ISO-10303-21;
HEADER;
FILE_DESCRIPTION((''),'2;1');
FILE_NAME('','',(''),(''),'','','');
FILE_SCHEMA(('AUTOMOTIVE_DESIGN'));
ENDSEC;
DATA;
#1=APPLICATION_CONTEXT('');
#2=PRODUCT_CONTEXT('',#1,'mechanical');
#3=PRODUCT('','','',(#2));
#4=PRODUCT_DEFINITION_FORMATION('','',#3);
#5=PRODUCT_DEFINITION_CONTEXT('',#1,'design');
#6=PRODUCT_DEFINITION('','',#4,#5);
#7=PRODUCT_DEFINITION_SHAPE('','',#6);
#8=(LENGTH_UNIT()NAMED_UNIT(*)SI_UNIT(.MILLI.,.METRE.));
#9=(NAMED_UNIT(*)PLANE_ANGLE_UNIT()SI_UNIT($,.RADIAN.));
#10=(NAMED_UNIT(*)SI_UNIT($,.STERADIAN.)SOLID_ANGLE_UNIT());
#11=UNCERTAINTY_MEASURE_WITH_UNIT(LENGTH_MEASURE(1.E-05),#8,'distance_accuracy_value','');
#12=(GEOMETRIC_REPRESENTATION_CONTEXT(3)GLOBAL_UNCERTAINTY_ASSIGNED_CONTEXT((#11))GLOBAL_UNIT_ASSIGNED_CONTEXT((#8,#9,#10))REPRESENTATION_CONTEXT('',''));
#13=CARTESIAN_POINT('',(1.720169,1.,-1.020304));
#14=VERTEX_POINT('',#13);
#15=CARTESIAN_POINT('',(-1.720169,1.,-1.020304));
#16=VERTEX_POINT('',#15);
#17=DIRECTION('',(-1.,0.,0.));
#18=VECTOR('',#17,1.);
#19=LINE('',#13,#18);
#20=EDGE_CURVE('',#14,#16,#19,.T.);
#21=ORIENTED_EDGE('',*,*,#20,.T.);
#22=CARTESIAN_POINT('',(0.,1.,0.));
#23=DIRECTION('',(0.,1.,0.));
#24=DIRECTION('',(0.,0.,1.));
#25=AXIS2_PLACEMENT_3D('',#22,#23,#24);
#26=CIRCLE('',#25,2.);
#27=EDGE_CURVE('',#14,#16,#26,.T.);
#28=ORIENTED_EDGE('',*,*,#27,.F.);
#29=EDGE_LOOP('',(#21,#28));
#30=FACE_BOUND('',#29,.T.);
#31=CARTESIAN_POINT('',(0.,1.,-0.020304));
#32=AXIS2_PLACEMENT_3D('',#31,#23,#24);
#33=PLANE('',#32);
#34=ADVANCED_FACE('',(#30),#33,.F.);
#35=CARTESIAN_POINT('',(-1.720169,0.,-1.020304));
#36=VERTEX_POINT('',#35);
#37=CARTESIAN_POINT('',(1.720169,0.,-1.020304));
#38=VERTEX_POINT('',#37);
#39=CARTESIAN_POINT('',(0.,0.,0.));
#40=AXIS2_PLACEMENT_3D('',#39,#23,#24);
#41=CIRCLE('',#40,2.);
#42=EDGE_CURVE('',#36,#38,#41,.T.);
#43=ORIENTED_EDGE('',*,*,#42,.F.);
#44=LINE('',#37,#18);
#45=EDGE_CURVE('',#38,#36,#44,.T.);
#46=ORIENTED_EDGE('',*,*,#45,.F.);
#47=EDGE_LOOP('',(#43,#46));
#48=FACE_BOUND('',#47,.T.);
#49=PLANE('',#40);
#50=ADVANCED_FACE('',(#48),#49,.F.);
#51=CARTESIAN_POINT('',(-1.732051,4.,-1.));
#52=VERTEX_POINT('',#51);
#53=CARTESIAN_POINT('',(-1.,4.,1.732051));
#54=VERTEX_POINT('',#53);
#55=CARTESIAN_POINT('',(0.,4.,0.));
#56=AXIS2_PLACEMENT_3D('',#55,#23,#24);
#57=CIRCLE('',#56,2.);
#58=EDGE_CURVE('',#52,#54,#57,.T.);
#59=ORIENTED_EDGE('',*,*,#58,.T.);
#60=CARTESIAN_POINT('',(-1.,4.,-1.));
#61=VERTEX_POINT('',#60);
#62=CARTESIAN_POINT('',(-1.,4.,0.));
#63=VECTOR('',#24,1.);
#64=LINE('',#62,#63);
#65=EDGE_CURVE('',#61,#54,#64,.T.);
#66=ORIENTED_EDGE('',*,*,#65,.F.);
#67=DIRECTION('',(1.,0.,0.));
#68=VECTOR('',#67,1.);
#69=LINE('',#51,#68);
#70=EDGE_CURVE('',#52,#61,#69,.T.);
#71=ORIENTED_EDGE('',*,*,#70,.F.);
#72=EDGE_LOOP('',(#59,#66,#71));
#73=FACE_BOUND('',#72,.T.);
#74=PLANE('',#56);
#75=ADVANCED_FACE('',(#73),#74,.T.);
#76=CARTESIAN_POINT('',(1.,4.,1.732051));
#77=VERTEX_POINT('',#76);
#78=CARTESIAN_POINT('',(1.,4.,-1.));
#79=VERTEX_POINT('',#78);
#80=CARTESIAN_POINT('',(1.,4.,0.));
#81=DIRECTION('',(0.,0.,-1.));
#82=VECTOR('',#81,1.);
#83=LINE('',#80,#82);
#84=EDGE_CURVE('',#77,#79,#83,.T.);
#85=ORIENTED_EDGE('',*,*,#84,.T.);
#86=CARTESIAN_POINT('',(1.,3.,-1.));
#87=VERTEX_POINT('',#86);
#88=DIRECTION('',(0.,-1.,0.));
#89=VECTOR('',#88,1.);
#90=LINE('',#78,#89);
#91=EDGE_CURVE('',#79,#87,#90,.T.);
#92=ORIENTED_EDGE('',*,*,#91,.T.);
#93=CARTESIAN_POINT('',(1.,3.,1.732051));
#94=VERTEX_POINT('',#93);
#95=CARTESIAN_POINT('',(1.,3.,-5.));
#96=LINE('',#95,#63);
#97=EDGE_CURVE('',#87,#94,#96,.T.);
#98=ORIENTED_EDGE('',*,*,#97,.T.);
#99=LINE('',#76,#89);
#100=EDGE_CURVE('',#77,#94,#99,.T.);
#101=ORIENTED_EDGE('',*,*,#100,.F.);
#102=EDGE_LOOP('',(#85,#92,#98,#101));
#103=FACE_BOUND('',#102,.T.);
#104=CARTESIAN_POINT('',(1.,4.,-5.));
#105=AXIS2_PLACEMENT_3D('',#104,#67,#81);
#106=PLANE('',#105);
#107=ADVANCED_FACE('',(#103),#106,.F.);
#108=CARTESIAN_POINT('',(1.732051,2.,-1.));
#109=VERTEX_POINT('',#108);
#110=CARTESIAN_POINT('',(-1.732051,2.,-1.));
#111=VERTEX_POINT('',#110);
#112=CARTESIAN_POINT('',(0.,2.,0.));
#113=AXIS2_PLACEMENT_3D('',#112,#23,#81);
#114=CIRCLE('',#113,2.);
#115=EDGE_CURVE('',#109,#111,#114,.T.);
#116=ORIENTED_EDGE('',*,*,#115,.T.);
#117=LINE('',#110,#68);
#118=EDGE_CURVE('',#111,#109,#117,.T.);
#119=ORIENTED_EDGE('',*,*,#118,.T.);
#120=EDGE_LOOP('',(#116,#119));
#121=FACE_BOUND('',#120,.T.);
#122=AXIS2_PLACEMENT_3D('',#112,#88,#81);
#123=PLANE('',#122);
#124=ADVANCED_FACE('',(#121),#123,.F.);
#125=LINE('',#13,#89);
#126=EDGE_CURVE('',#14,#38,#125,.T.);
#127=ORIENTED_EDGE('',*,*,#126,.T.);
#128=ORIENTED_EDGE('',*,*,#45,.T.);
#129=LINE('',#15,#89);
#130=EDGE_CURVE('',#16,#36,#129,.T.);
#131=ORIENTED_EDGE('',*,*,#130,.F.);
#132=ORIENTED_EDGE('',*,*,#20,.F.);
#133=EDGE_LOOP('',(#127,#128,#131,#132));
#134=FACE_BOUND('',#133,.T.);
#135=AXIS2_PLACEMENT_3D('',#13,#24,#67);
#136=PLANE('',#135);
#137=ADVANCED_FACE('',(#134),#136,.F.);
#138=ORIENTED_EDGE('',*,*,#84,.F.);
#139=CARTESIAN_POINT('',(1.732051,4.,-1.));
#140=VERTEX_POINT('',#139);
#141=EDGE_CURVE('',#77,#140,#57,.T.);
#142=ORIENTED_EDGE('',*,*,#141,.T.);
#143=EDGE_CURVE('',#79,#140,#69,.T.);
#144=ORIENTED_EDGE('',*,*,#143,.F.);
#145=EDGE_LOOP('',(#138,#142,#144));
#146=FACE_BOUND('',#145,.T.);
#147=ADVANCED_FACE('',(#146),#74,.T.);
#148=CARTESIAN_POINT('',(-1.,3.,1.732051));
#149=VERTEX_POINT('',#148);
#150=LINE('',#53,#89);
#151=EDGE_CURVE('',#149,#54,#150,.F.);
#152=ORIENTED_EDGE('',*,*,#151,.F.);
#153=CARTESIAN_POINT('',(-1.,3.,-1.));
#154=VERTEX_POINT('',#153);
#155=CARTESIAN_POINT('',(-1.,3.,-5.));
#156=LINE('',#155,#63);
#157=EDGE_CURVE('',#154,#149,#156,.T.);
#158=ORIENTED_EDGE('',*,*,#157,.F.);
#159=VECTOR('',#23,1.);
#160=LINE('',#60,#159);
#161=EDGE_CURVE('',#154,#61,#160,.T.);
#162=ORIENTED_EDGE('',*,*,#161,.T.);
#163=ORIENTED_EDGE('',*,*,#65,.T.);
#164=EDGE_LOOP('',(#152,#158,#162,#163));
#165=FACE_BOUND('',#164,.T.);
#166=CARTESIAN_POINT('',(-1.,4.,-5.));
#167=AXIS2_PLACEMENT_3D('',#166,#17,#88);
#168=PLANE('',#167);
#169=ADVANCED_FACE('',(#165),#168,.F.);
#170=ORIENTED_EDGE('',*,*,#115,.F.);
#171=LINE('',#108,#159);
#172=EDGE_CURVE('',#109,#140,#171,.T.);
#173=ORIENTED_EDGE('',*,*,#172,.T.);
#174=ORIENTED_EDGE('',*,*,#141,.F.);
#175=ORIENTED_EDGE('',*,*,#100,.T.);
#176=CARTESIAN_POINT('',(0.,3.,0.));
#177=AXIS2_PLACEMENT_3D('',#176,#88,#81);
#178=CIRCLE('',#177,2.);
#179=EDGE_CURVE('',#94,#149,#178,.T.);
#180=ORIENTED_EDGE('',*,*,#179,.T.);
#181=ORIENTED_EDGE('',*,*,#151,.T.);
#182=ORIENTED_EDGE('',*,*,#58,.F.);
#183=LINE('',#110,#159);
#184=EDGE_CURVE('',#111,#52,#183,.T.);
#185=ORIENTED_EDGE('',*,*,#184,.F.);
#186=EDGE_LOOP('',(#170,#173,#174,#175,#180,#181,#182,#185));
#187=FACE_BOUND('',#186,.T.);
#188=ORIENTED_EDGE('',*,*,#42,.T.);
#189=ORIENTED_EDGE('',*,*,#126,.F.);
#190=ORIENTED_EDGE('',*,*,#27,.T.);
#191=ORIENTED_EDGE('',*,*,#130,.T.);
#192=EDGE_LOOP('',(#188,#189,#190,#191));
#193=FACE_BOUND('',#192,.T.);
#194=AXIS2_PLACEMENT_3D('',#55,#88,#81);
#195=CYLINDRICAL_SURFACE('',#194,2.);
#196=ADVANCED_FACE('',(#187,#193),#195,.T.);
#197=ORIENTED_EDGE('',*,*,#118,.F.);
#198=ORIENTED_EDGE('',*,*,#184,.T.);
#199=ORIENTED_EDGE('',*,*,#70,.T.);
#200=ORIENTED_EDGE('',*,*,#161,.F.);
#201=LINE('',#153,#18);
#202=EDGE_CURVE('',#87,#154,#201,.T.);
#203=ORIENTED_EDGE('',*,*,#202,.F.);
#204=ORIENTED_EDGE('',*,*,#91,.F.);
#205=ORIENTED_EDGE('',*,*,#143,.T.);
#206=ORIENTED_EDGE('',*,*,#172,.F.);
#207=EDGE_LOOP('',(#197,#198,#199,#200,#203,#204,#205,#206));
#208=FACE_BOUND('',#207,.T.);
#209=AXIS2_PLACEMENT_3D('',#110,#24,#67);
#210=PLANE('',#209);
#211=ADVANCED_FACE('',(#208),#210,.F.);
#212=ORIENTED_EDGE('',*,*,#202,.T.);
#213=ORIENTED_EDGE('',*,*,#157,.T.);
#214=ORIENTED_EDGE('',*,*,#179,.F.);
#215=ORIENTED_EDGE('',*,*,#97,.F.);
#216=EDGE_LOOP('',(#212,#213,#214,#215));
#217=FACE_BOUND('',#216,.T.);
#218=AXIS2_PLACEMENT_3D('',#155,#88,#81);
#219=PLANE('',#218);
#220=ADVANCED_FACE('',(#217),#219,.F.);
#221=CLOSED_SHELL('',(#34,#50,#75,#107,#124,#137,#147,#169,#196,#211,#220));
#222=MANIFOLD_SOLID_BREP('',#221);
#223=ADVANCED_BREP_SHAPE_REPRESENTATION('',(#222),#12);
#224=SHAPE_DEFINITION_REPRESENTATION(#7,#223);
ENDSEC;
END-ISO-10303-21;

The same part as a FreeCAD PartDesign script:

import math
import FreeCAD as App
import Part
import Sketcher

V = App.Vector
Q = App.Units.Quantity

doc = App.newDocument("Part")
params = doc.addObject("Spreadsheet::Sheet", "Params")
for row, (alias, value) in enumerate([
    ("sketch1_diameter", "4 mm"),
    ("pad1_length", "4 mm"),
    ("sketch2_width", "2 mm"),
    ("sketch2_height", "1 mm"),
    ("pocket1_length", "10 mm"),
    ("sketch3_radius", "2 mm"),
    ("pocket2_length", "2 mm"),
    ("pocket3_length", "1 mm"),
], start=1):
    params.set(f"A{row}", alias)
    params.set(f"B{row}", "=" + value)
    params.setAlias(f"B{row}", alias)

body = doc.addObject("PartDesign::Body", "Body")

sketch1 = body.newObject("Sketcher::SketchObject", "Sketch")
sketch1.AttachmentSupport = (doc.getObject("XZ_Plane"), [""])
sketch1.MapMode = "FlatFace"
sketch1.addGeometry(Part.Circle(V(0, 0, 0), V(0, 0, 1), 2), False)
sketch1.addConstraint([
    Sketcher.Constraint("Coincident", 0, 3, -1, 1),
    Sketcher.Constraint("Diameter", 0, Q("4 mm")),
])
sketch1.setExpression("Constraints[1]", "Params.sketch1_diameter")
pad1 = body.newObject("PartDesign::Pad", "Pad")
pad1.Profile = sketch1
pad1.setExpression("Length", "Params.pad1_length")
pad1.Reversed = True

sketch2 = body.newObject("Sketcher::SketchObject", "Sketch001")
sketch2.AttachmentSupport = (doc.getObject("XY_Plane"), [""])
sketch2.MapMode = "FlatFace"
sketch2.addGeometry([
    Part.LineSegment(V(-1, 4, 0), V(-1, 3, 0)),
    Part.LineSegment(V(-1, 3, 0), V(1, 3, 0)),
    Part.LineSegment(V(1, 3, 0), V(1, 4, 0)),
    Part.LineSegment(V(1, 4, 0), V(-1, 4, 0)),
], False)
sketch2.addConstraint([
    Sketcher.Constraint("Coincident", 0, 2, 1, 1),
    Sketcher.Constraint("Coincident", 1, 2, 2, 1),
    Sketcher.Constraint("Coincident", 2, 2, 3, 1),
    Sketcher.Constraint("Coincident", 3, 2, 0, 1),
    Sketcher.Constraint("Vertical", 0),
    Sketcher.Constraint("Horizontal", 1),
    Sketcher.Constraint("Vertical", 2),
    Sketcher.Constraint("Horizontal", 3),
    Sketcher.Constraint("DistanceX", 1, 1, 1, 2, Q("2 mm")),
    Sketcher.Constraint("DistanceY", 0, 2, 0, 1, Q("1 mm")),
    Sketcher.Constraint("DistanceX", 0, 2, -1, 1, Q("1 mm")),
    Sketcher.Constraint("DistanceY", -1, 1, 0, 2, Q("3 mm")),
])
sketch2.setExpression("Constraints[8]", "Params.sketch2_width")
sketch2.setExpression("Constraints[9]", "Params.sketch2_height")
pocket1 = body.newObject("PartDesign::Pocket", "Pocket")
pocket1.Profile = sketch2
pocket1.setExpression("Length", "Params.pocket1_length")
pocket1.Midplane = True

sketch3 = body.newObject("Sketcher::SketchObject", "Sketch002")
sketch3.AttachmentSupport = (doc.getObject("XZ_Plane"), [""])
sketch3.MapMode = "FlatFace"
sketch3.AttachmentOffset = App.Placement(V(0, 0, -4), App.Rotation())
sketch3.addGeometry([
    Part.LineSegment(V(-1.732051, -1, 0), V(1.732051, -1, 0)),
    Part.ArcOfCircle(Part.Circle(V(0, 0, 0), V(0, 0, 1), 2), math.radians(-150), math.radians(-30)),
], False)
sketch3.addConstraint([
    Sketcher.Constraint("Coincident", 0, 1, 1, 1),
    Sketcher.Constraint("Coincident", 1, 2, 0, 2),
    Sketcher.Constraint("Horizontal", 0),
    Sketcher.Constraint("Coincident", 1, 3, -1, 1),
    Sketcher.Constraint("Radius", 1, Q("2 mm")),
    Sketcher.Constraint("DistanceY", 0, 1, -1, 1, Q("1 mm")),
])
sketch3.setExpression("Constraints[4]", "Params.sketch3_radius")
pocket2 = body.newObject("PartDesign::Pocket", "Pocket001")
pocket2.Profile = sketch3
pocket2.setExpression("Length", "Params.pocket2_length")
pocket2.Reversed = True

sketch4 = body.newObject("Sketcher::SketchObject", "Sketch003")
sketch4.AttachmentSupport = (doc.getObject("XZ_Plane"), [""])
sketch4.MapMode = "FlatFace"
sketch4.addGeometry([
    Part.LineSegment(V(1.720169, -1.020304, 0), V(-1.720169, -1.020304, 0)),
    Part.ArcOfCircle(Part.Circle(V(0, -0.020304, 0), V(0, 0, 1), 1.989719), math.radians(-149.828922), math.radians(-30.171078)),
], False)
sketch4.addConstraint([
    Sketcher.Constraint("Coincident", 0, 1, 1, 2),
    Sketcher.Constraint("Coincident", 1, 1, 0, 2),
    Sketcher.Constraint("Horizontal", 0),
    Sketcher.Constraint("PointOnObject", 1, 3, -2),
    Sketcher.Constraint("DistanceY", 0, 1, 1, 3, Q("1 mm")),
    Sketcher.Constraint("Radius", 1, Q("1.989719 mm")),
    Sketcher.Constraint("DistanceY", 1, 3, -1, 1, Q("0.020304 mm")),
])
pocket3 = body.newObject("PartDesign::Pocket", "Pocket002")
pocket3.Profile = sketch4
pocket3.setExpression("Length", "Params.pocket3_length")

doc.recompute()
